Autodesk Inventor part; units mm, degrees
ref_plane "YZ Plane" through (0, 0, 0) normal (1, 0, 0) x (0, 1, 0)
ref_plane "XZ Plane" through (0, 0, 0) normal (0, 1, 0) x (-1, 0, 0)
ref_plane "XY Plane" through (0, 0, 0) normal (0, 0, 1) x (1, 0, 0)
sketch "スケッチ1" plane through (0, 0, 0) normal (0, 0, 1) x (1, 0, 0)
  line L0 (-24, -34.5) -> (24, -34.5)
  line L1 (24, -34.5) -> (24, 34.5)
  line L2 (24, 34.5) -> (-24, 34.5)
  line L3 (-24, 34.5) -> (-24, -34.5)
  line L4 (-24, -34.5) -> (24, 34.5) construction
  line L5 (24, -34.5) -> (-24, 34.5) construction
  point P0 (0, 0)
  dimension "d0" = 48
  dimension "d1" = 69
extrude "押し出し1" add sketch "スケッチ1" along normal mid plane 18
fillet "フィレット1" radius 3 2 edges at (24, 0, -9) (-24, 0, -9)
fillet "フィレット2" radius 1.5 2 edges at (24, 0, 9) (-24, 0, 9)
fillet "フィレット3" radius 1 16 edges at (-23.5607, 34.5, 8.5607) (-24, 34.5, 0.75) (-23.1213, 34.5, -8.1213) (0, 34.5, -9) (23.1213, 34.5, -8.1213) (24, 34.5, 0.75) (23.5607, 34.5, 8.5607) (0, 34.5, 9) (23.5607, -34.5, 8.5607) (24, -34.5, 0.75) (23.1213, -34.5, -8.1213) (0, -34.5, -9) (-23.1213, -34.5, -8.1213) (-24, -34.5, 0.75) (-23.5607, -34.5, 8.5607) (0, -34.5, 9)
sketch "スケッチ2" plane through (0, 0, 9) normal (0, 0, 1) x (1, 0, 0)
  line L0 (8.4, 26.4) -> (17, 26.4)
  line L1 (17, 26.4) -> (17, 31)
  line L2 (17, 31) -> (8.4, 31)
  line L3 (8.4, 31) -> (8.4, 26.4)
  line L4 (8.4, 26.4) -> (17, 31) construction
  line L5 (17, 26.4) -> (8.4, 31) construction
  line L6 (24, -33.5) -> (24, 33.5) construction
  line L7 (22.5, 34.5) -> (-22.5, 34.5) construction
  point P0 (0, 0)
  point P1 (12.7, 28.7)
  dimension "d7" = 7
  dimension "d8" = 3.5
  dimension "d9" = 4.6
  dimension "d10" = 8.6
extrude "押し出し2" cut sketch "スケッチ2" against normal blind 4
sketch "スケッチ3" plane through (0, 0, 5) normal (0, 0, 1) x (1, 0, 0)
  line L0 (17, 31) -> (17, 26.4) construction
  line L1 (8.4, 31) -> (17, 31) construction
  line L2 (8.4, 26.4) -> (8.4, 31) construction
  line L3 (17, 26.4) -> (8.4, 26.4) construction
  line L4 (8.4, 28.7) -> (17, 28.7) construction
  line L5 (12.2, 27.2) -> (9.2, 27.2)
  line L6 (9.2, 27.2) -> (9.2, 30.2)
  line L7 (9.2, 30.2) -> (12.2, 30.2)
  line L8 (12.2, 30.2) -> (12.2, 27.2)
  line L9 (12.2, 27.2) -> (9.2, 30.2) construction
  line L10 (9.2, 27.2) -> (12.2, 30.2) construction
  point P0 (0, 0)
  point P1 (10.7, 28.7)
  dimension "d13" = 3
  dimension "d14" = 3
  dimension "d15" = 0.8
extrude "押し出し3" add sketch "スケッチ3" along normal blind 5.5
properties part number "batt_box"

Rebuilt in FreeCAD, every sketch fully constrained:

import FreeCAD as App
import Part
import Sketcher


def edges_at(feature, points):
    """Names of the edges that pass closest to the given points."""
    edges = feature.Shape.Edges
    near = lambda p: min(range(len(edges)), key=lambda i: edges[i].distToShape(Part.Vertex(*p))[0])
    return sorted({f"Edge{near(p) + 1}" for p in points})


def add_polygon(sketch, points):
    """Adds a closed chain of lines whose ends are joined by coincident constraints."""
    first, n = sketch.GeometryCount, len(points)
    for a, b in zip(points, points[1:] + points[:1]):
        sketch.addGeometry(Part.LineSegment(App.Vector(*a, 0), App.Vector(*b, 0)), False)
    for i in range(n):
        sketch.addConstraint(Sketcher.Constraint("Coincident", first + i, 2, first + (i + 1) % n, 1))

doc = App.newDocument("Part")
body = doc.addObject("PartDesign::Body", "Body")

sketch1 = body.newObject("Sketcher::SketchObject", "Sketch")
sketch1.AttachmentSupport = (doc.getObject("XY_Plane"), [""])
sketch1.MapMode = "FlatFace"
add_polygon(sketch1, [(-24, 34.5), (-24, -34.5), (24, -34.5), (24, 34.5)])
sketch1.addConstraint(Sketcher.Constraint("Vertical", 0))
sketch1.addConstraint(Sketcher.Constraint("Horizontal", 1))
sketch1.addConstraint(Sketcher.Constraint("Vertical", 2))
sketch1.addConstraint(Sketcher.Constraint("Horizontal", 3))
sketch1.addConstraint(Sketcher.Constraint("Symmetric", 0, 2, 2, 2, -1, 1))
sketch1.addConstraint(Sketcher.Constraint("DistanceX", 1, 1, 1, 2, 48.0))
sketch1.addConstraint(Sketcher.Constraint("DistanceY", 0, 2, 0, 1, 69.0))
pad1 = body.newObject("PartDesign::Pad", "Pad")
pad1.Profile = sketch1
pad1.Length = 18
pad1.Midplane = True
doc.recompute()

fillet = body.newObject("PartDesign::Fillet", "Fillet")
fillet.Base = (pad1, edges_at(pad1, [(24, 0, -9), (-24, 0, -9)]))
fillet.Radius = 3
doc.recompute()

fillet2 = body.newObject("PartDesign::Fillet", "Fillet001")
fillet2.Base = (fillet, edges_at(fillet, [(24, 0, 9), (-24, 0, 9)]))
fillet2.Radius = 1.5
doc.recompute()

fillet3 = body.newObject("PartDesign::Fillet", "Fillet002")
fillet3.Base = (fillet2, edges_at(fillet2, [
    (-23.561, 34.5, 8.561),
    (-24, 34.5, 0.75),
    (-23.121, 34.5, -8.121),
    (0, 34.5, -9),
    (23.121, 34.5, -8.121),
    (24, 34.5, 0.75),
    (23.561, 34.5, 8.561),
    (0, 34.5, 9),
    (23.561, -34.5, 8.561),
    (24, -34.5, 0.75),
    (23.121, -34.5, -8.121),
    (0, -34.5, -9),
    (-23.121, -34.5, -8.121),
    (-24, -34.5, 0.75),
    (-23.561, -34.5, 8.561),
    (0, -34.5, 9),
]))
fillet3.Radius = 1

sketch2 = body.newObject("Sketcher::SketchObject", "Sketch001")
sketch2.AttachmentSupport = (doc.getObject("XY_Plane"), [""])
sketch2.MapMode = "FlatFace"
sketch2.AttachmentOffset = App.Placement(App.Vector(0, 0, 9), App.Rotation())
add_polygon(sketch2, [(8.4, 31), (8.4, 26.4), (17, 26.4), (17, 31)])
sketch2.addConstraint(Sketcher.Constraint("Vertical", 0))
sketch2.addConstraint(Sketcher.Constraint("Horizontal", 1))
sketch2.addConstraint(Sketcher.Constraint("Vertical", 2))
sketch2.addConstraint(Sketcher.Constraint("Horizontal", 3))
sketch2.addConstraint(Sketcher.Constraint("DistanceX", 1, 1, 1, 2, 8.6))
sketch2.addConstraint(Sketcher.Constraint("DistanceY", 0, 2, 0, 1, 4.6))
sketch2.addConstraint(Sketcher.Constraint("DistanceX", -1, 1, 1, 2, 17.0))
sketch2.addConstraint(Sketcher.Constraint("DistanceY", -1, 1, 2, 2, 31.0))
pocket1 = body.newObject("PartDesign::Pocket", "Pocket")
pocket1.Profile = sketch2
pocket1.Length = 4

sketch3 = body.newObject("Sketcher::SketchObject", "Sketch002")
sketch3.AttachmentSupport = (doc.getObject("XY_Plane"), [""])
sketch3.MapMode = "FlatFace"
sketch3.AttachmentOffset = App.Placement(App.Vector(0, 0, 5), App.Rotation())
add_polygon(sketch3, [(9.2, 27.2), (12.2, 27.2), (12.2, 30.2), (9.2, 30.2)])
sketch3.addConstraint(Sketcher.Constraint("Horizontal", 0))
sketch3.addConstraint(Sketcher.Constraint("Vertical", 1))
sketch3.addConstraint(Sketcher.Constraint("Horizontal", 2))
sketch3.addConstraint(Sketcher.Constraint("Vertical", 3))
sketch3.addConstraint(Sketcher.Constraint("Equal", 2, 1))
sketch3.addConstraint(Sketcher.Constraint("DistanceX", 0, 1, 0, 2, 3.0))
sketch3.addConstraint(Sketcher.Constraint("DistanceX", -1, 1, 0, 2, 12.2))
sketch3.addConstraint(Sketcher.Constraint("DistanceY", -1, 1, 0, 2, 27.2))
pad2 = body.newObject("PartDesign::Pad", "Pad001")
pad2.Profile = sketch3
pad2.Length = 5.5

doc.recompute()
